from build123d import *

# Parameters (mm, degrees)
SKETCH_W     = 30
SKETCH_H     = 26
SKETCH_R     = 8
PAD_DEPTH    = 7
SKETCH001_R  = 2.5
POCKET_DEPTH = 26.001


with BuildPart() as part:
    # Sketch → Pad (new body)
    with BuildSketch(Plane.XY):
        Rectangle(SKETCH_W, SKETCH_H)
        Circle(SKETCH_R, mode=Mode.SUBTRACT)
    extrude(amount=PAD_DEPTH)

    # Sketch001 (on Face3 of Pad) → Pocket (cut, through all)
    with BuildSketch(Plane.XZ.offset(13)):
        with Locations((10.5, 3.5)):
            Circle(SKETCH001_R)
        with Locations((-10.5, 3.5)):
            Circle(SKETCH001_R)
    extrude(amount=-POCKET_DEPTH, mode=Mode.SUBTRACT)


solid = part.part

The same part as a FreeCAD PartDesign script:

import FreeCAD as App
import Part
import Sketcher


def add_polygon(sketch, points):
    """Adds a closed chain of lines whose ends are joined by coincident constraints."""
    first, n = sketch.GeometryCount, len(points)
    for a, b in zip(points, points[1:] + points[:1]):
        sketch.addGeometry(Part.LineSegment(App.Vector(*a, 0), App.Vector(*b, 0)), False)
    for i in range(n):
        sketch.addConstraint(Sketcher.Constraint("Coincident", first + i, 2, first + (i + 1) % n, 1))

doc = App.newDocument("Part")
body = doc.addObject("PartDesign::Body", "Body")

# Sketch on XY plane
sketch1 = body.newObject("Sketcher::SketchObject", "Sketch")
sketch1.AttachmentSupport = (doc.getObject("XY_Plane"), [""])
sketch1.MapMode = "FlatFace"
add_polygon(sketch1, [(-15, 13), (-15, -13), (15, -13), (15, 13)])  # lines 0-3
sketch1.addGeometry(Part.Circle(App.Vector(0, 0, 0), App.Vector(0, 0, 1), 8), False)  # 4
sketch1.addConstraint([
    Sketcher.Constraint("Vertical", 0),
    Sketcher.Constraint("Horizontal", 1),
    Sketcher.Constraint("Vertical", 2),
    Sketcher.Constraint("Horizontal", 3),
    Sketcher.Constraint("Coincident", 4, 3, -1, 1),
    Sketcher.Constraint("Symmetric", 0, 2, 2, 2, -1, 1),
    Sketcher.Constraint("Diameter", 4, 16.0),
    Sketcher.Constraint("DistanceX", 1, 1, 1, 2, 30.0),
    Sketcher.Constraint("DistanceY", 0, 2, 0, 1, 26.0),
])
pad1 = body.newObject("PartDesign::Pad", "Pad")
pad1.Profile = sketch1
pad1.Length = 7

# Sketch on XZ plane
sketch2 = body.newObject("Sketcher::SketchObject", "Sketch001")
sketch2.AttachmentSupport = (doc.getObject("XZ_Plane"), [""])
sketch2.MapMode = "FlatFace"
sketch2.AttachmentOffset = App.Placement(App.Vector(0, 0, 13), App.Rotation())
sketch2.addGeometry([
    Part.Circle(App.Vector(10.5, 3.5, 0), App.Vector(0, 0, 1), 2.5),
    Part.Circle(App.Vector(-10.5, 3.5, 0), App.Vector(0, 0, 1), 2.5),
], False)
sketch2.addConstraint([
    Sketcher.Constraint("Equal", 0, 1),
    Sketcher.Constraint("Symmetric", 0, 3, 1, 3, -2),
    Sketcher.Constraint("Diameter", 0, 5.0),
    Sketcher.Constraint("DistanceX", 1, 3, 0, 3, 21.0),
    Sketcher.Constraint("DistanceY", -1, 1, 0, 3, 3.5),
])
pocket1 = body.newObject("PartDesign::Pocket", "Pocket")
pocket1.Profile = sketch2
pocket1.Type = "ThroughAll"

doc.recompute()
